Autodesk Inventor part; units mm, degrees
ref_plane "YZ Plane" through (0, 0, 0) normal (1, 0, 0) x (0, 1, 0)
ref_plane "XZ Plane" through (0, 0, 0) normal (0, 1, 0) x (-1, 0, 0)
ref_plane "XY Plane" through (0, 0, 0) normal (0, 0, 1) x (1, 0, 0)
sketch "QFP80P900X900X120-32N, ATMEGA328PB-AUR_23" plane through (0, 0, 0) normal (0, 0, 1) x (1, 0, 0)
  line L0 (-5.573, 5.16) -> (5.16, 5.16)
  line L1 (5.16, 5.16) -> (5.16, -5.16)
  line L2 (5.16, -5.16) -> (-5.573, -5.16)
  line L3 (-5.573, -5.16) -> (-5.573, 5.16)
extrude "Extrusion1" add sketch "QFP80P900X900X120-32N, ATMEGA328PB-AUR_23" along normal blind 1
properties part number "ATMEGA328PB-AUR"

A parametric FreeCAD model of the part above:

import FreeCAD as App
import Part
import Sketcher

V = App.Vector


def add_polygon(sketch, points):
    """Adds a closed chain of lines whose ends are joined by coincident constraints."""
    first, n = sketch.GeometryCount, len(points)
    for a, b in zip(points, points[1:] + points[:1]):
        sketch.addGeometry(Part.LineSegment(App.Vector(*a, 0), App.Vector(*b, 0)), False)
    for i in range(n):
        sketch.addConstraint(Sketcher.Constraint("Coincident", first + i, 2, first + (i + 1) % n, 1))

doc = App.newDocument("Part")
body = doc.addObject("PartDesign::Body", "Body")

# Sketch on XY plane
sketch1 = body.newObject("Sketcher::SketchObject", "Sketch")
sketch1.AttachmentSupport = (doc.getObject("XY_Plane"), [""])
sketch1.MapMode = "FlatFace"
add_polygon(sketch1, [(5, 5), (-6, 5), (-6, -5), (5, -5)])  # lines 0-3
sketch1.addConstraint(Sketcher.Constraint("Horizontal", 0))
sketch1.addConstraint(Sketcher.Constraint("Vertical", 1))
sketch1.addConstraint(Sketcher.Constraint("Horizontal", 2))
sketch1.addConstraint(Sketcher.Constraint("Vertical", 3))
sketch1.addConstraint(Sketcher.Constraint("DistanceY", 1, 2, 1, 1, 10.32))
sketch1.addConstraint(Sketcher.Constraint("DistanceX", 0, 2, 0, 1, 10.733))
sketch1.addConstraint(Sketcher.Constraint("DistanceY", -1, 1, 0, 2, 5.16))
sketch1.addConstraint(Sketcher.Constraint("DistanceX", -1, 1, 2, 2, 5.16))
pad1 = body.newObject("PartDesign::Pad", "Pad")
pad1.Profile = sketch1
pad1.Length = 1

doc.recompute()
